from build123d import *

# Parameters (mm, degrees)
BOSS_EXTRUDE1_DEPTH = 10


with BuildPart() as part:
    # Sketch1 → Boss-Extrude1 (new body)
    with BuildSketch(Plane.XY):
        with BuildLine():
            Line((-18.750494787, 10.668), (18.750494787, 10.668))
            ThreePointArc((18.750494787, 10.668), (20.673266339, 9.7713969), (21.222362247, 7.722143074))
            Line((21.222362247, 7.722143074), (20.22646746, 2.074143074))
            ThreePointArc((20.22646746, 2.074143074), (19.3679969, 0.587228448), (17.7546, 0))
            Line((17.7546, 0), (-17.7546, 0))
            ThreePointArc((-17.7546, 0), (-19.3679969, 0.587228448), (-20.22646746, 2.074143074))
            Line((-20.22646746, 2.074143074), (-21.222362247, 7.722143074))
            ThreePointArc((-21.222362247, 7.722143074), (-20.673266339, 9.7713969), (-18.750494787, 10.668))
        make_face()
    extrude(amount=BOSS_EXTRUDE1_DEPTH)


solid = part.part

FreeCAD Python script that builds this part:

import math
import FreeCAD as App
import Part
import Sketcher
Q = App.Units.Quantity

doc = App.newDocument("Part")
params = doc.addObject("Spreadsheet::Sheet", "Params")
for row, (alias, value) in enumerate([
    ("sketch1_radius", "2.51 mm"),
    ("pad1_length", "10 mm"),
], start=1):
    params.set(f"A{row}", alias)
    params.set(f"B{row}", "=" + value)
    params.setAlias(f"B{row}", alias)

body = doc.addObject("PartDesign::Body", "Body")

# Sketch on XY plane
sketch1 = doc.addObject("Sketcher::SketchObject", "Sketch")
body.addObject(sketch1)
sketch1.AttachmentSupport = (doc.XY_Plane, [""])
sketch1.MapMode = "FlatFace"
sketch1.addGeometry(Part.LineSegment(App.Vector(18.750495, 10.668, 0), App.Vector(-18.750495, 10.668, 0)), False)
sketch1.addGeometry(Part.ArcOfCircle(Part.Circle(App.Vector(-18.750495, 8.158, 0), App.Vector(0, 0, 1), 2.51), math.radians(90), math.radians(190)), False)
sketch1.addGeometry(Part.LineSegment(App.Vector(-21.222362, 7.722143, 0), App.Vector(-20.226467, 2.074143, 0)), False)
sketch1.addGeometry(Part.ArcOfCircle(Part.Circle(App.Vector(-17.7546, 2.51, 0), App.Vector(0, 0, 1), 2.51), math.radians(-170), math.radians(-90)), False)
sketch1.addGeometry(Part.LineSegment(App.Vector(-17.7546, 0, 0), App.Vector(17.7546, 0, 0)), False)
sketch1.addGeometry(Part.ArcOfCircle(Part.Circle(App.Vector(17.7546, 2.51, 0), App.Vector(0, 0, 1), 2.51), math.radians(-90), math.radians(-10)), False)
sketch1.addGeometry(Part.LineSegment(App.Vector(20.226467, 2.074143, 0), App.Vector(21.222362, 7.722143, 0)), False)
sketch1.addGeometry(Part.ArcOfCircle(Part.Circle(App.Vector(18.750495, 8.158, 0), App.Vector(0, 0, 1), 2.51), math.radians(-10), math.radians(90)), False)
sketch1.addConstraint(Sketcher.Constraint("Tangent", 0, 2, 1, 1))
sketch1.addConstraint(Sketcher.Constraint("Tangent", 1, 2, 2, 1))
sketch1.addConstraint(Sketcher.Constraint("Tangent", 2, 2, 3, 1))
sketch1.addConstraint(Sketcher.Constraint("Tangent", 3, 2, 4, 1))
sketch1.addConstraint(Sketcher.Constraint("Tangent", 4, 2, 5, 1))
sketch1.addConstraint(Sketcher.Constraint("Tangent", 5, 2, 6, 1))
sketch1.addConstraint(Sketcher.Constraint("Tangent", 6, 2, 7, 1))
sketch1.addConstraint(Sketcher.Constraint("Tangent", 7, 2, 0, 1))
sketch1.addConstraint(Sketcher.Constraint("Horizontal", 0))
sketch1.addConstraint(Sketcher.Constraint("Horizontal", 4))
sketch1.addConstraint(Sketcher.Constraint("Equal", 1, 3))
sketch1.addConstraint(Sketcher.Constraint("Equal", 3, 5))
sketch1.addConstraint(Sketcher.Constraint("Equal", 5, 7))
sketch1.addConstraint(Sketcher.Constraint("Symmetric", 3, 2, 4, 2, -1, 1))
sketch1.addConstraint(Sketcher.Constraint("Horizontal", 2, 2, 5, 2))
sketch1.addConstraint(Sketcher.Constraint("Angle", 2, Q("-80 deg")))
sketch1.addConstraint(Sketcher.Constraint("Radius", 1, Q("2.51 mm")))
sketch1.addConstraint(Sketcher.Constraint("DistanceX", 4, 1, 4, 2, Q("35.5092 mm")))
sketch1.addConstraint(Sketcher.Constraint("DistanceY", -1, 1, 1, 3, Q("8.158 mm")))
sketch1.setExpression("Constraints[16]", "Params.sketch1_radius")
pad1 = doc.addObject("PartDesign::Pad", "Pad")
body.addObject(pad1)
pad1.Profile = sketch1
pad1.setExpression("Length", "Params.pad1_length")

doc.recompute()
